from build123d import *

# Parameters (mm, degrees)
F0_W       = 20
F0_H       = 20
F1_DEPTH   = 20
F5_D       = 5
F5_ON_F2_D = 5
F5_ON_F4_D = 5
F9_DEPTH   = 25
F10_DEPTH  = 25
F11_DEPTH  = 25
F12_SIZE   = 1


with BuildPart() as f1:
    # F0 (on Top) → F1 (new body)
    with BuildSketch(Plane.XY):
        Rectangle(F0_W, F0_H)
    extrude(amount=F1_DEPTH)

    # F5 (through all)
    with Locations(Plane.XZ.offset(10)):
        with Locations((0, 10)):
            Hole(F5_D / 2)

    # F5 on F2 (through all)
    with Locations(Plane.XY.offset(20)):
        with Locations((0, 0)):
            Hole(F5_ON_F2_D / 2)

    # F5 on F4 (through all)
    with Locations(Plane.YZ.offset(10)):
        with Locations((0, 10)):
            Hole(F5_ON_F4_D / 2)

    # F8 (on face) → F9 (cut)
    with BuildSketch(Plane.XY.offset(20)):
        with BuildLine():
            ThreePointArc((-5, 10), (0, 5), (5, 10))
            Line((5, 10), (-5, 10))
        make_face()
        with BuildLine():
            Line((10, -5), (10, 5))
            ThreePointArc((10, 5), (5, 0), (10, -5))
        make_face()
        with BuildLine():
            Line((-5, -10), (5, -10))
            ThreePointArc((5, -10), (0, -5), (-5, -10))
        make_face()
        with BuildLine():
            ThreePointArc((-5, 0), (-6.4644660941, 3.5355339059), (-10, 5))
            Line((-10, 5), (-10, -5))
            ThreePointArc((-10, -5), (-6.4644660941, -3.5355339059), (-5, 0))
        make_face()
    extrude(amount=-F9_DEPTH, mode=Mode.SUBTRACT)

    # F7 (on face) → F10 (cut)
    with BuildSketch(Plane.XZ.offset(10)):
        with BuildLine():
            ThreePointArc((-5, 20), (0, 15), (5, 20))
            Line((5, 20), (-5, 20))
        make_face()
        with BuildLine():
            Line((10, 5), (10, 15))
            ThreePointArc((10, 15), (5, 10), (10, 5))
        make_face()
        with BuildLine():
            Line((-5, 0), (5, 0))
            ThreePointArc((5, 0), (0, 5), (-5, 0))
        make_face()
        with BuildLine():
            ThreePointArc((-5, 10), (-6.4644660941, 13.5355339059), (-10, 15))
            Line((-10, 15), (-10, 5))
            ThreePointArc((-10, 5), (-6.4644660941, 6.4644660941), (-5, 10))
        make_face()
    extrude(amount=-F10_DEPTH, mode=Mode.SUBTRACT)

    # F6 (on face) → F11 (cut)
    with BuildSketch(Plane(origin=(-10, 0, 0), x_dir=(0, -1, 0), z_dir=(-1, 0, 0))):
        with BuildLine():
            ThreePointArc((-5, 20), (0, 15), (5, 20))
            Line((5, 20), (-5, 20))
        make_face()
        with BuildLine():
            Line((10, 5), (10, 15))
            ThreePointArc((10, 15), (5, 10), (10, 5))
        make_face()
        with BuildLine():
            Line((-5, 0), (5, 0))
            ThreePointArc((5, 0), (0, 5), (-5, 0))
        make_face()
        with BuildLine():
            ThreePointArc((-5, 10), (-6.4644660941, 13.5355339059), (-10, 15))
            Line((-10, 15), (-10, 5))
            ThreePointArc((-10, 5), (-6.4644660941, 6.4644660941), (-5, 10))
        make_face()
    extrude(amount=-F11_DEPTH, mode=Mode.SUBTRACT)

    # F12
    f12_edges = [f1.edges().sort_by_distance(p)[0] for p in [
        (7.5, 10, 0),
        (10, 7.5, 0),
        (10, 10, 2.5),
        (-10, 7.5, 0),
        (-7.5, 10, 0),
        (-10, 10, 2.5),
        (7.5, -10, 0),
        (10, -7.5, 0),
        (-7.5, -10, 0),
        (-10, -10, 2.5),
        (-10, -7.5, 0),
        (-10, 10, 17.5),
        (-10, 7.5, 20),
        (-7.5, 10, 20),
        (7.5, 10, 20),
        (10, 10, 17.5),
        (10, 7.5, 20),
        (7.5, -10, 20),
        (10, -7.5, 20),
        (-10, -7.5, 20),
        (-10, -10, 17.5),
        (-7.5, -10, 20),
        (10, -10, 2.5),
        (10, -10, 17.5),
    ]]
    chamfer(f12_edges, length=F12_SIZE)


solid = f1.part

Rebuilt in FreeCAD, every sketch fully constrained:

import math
import FreeCAD as App
import Part
import Sketcher


def edges_at(feature, points):
    """Names of the edges that pass closest to the given points."""
    edges = feature.Shape.Edges
    near = lambda p: min(range(len(edges)), key=lambda i: edges[i].distToShape(Part.Vertex(*p))[0])
    return sorted({f"Edge{near(p) + 1}" for p in points})


def add_polygon(sketch, points):
    """Adds a closed chain of lines whose ends are joined by coincident constraints."""
    first, n = sketch.GeometryCount, len(points)
    for a, b in zip(points, points[1:] + points[:1]):
        sketch.addGeometry(Part.LineSegment(App.Vector(*a, 0), App.Vector(*b, 0)), False)
    for i in range(n):
        sketch.addConstraint(Sketcher.Constraint("Coincident", first + i, 2, first + (i + 1) % n, 1))

doc = App.newDocument("Part")
body = doc.addObject("PartDesign::Body", "Body")

# Sketch on XY plane
sketch1 = body.newObject("Sketcher::SketchObject", "Sketch")
sketch1.AttachmentSupport = (doc.getObject("XY_Plane"), [""])
sketch1.MapMode = "FlatFace"
add_polygon(sketch1, [(-10, 10), (-10, -10), (10, -10), (10, 10)])  # lines 0-3
sketch1.addConstraint([
    Sketcher.Constraint("Vertical", 0),
    Sketcher.Constraint("Horizontal", 1),
    Sketcher.Constraint("Vertical", 2),
    Sketcher.Constraint("Horizontal", 3),
    Sketcher.Constraint("Symmetric", 0, 2, 2, 2, -1, 1),
    Sketcher.Constraint("Equal", 3, 0),
    Sketcher.Constraint("DistanceX", 1, 1, 1, 2, 20.0),
])
pad1 = body.newObject("PartDesign::Pad", "Pad")
pad1.Profile = sketch1
pad1.Length = 20

# Sketch on XZ plane
sketch2 = body.newObject("Sketcher::SketchObject", "Sketch001")
sketch2.AttachmentSupport = (doc.getObject("XZ_Plane"), [""])
sketch2.MapMode = "FlatFace"
sketch2.AttachmentOffset = App.Placement(App.Vector(0, 0, 10), App.Rotation())
sketch2.addGeometry(Part.Circle(App.Vector(0, 10, 0), App.Vector(0, 0, 1), 2.5), False)
sketch2.addConstraint([
    Sketcher.Constraint("PointOnObject", 0, 3, -2),
    Sketcher.Constraint("Diameter", 0, 5.0),
    Sketcher.Constraint("DistanceY", -1, 1, 0, 3, 10.0),
])
doc.recompute()
hole = body.newObject("PartDesign::Hole", "Hole")
hole.Profile = sketch2
hole.ThreadType = "None"
hole.Diameter = 5
hole.DepthType = "ThroughAll"

# Sketch on XY plane
sketch3 = body.newObject("Sketcher::SketchObject", "Sketch002")
sketch3.AttachmentSupport = (doc.getObject("XY_Plane"), [""])
sketch3.MapMode = "FlatFace"
sketch3.AttachmentOffset = App.Placement(App.Vector(0, 0, 20), App.Rotation())
sketch3.addGeometry(Part.Circle(App.Vector(0, 0, 0), App.Vector(0, 0, 1), 2.5), False)
sketch3.addConstraint([
    Sketcher.Constraint("Coincident", 0, 3, -1, 1),
    Sketcher.Constraint("Diameter", 0, 5.0),
])
doc.recompute()
hole2 = body.newObject("PartDesign::Hole", "Hole001")
hole2.Profile = sketch3
hole2.ThreadType = "None"
hole2.Diameter = 5
hole2.DepthType = "ThroughAll"

# Sketch on YZ plane
sketch4 = body.newObject("Sketcher::SketchObject", "Sketch003")
sketch4.AttachmentSupport = (doc.getObject("YZ_Plane"), [""])
sketch4.MapMode = "FlatFace"
sketch4.AttachmentOffset = App.Placement(App.Vector(0, 0, 10), App.Rotation())
sketch4.addGeometry(Part.Circle(App.Vector(0, 10, 0), App.Vector(0, 0, 1), 2.5), False)
sketch4.addConstraint([
    Sketcher.Constraint("PointOnObject", 0, 3, -2),
    Sketcher.Constraint("Diameter", 0, 5.0),
    Sketcher.Constraint("DistanceY", -1, 1, 0, 3, 10.0),
])
doc.recompute()
hole3 = body.newObject("PartDesign::Hole", "Hole002")
hole3.Profile = sketch4
hole3.ThreadType = "None"
hole3.Diameter = 5
hole3.DepthType = "ThroughAll"

# Sketch on XY plane
sketch5 = body.newObject("Sketcher::SketchObject", "Sketch004")
sketch5.AttachmentSupport = (doc.getObject("XY_Plane"), [""])
sketch5.MapMode = "FlatFace"
sketch5.AttachmentOffset = App.Placement(App.Vector(0, 0, 20), App.Rotation())
sketch5.addGeometry([
    Part.ArcOfCircle(Part.Circle(App.Vector(0, 10, 0), App.Vector(0, 0, 1), 5), math.radians(180), math.radians(360)),  # 0
    Part.LineSegment(App.Vector(5, 10, 0), App.Vector(-5, 10, 0)),  # 1
    Part.LineSegment(App.Vector(10, -5, 0), App.Vector(10, 5, 0)),  # 2
    Part.ArcOfCircle(Part.Circle(App.Vector(10, 0, 0), App.Vector(0, 0, 1), 5), math.radians(90), math.radians(270)),  # 3
    Part.LineSegment(App.Vector(-5, -10, 0), App.Vector(5, -10, 0)),  # 4
    Part.ArcOfCircle(Part.Circle(App.Vector(0, -10, 0), App.Vector(0, 0, 1), 5), math.radians(0), math.radians(180)),  # 5
    Part.ArcOfCircle(Part.Circle(App.Vector(-10, 0, 0), App.Vector(0, 0, 1), 5), math.radians(0), math.radians(90)),  # 6
    Part.LineSegment(App.Vector(-10, 5, 0), App.Vector(-10, -5, 0)),  # 7
    Part.ArcOfCircle(Part.Circle(App.Vector(-10, 0, 0), App.Vector(0, 0, 1), 5), math.radians(-90), math.radians(0)),  # 8
], False)
sketch5.addConstraint([
    Sketcher.Constraint("Coincident", 0, 1, 1, 2),
    Sketcher.Constraint("Coincident", 1, 1, 0, 2),
    Sketcher.Constraint("Coincident", 2, 1, 3, 2),
    Sketcher.Constraint("Coincident", 3, 1, 2, 2),
    Sketcher.Constraint("Coincident", 4, 1, 5, 2),
    Sketcher.Constraint("Coincident", 5, 1, 4, 2),
    Sketcher.Constraint("Coincident", 6, 2, 7, 1),
    Sketcher.Constraint("Coincident", 7, 2, 8, 1),
    Sketcher.Constraint("Tangent", 8, 2, 6, 1),
    Sketcher.Constraint("Horizontal", 1),
    Sketcher.Constraint("Vertical", 2),
    Sketcher.Constraint("Horizontal", 4),
    Sketcher.Constraint("Vertical", 7),
    Sketcher.Constraint("Equal", 0, 3),
    Sketcher.Constraint("Equal", 3, 5),
    Sketcher.Constraint("Equal", 5, 6),
    Sketcher.Constraint("Equal", 6, 8),
    Sketcher.Constraint("Symmetric", 0, 3, 5, 3, -1, 1),
    Sketcher.Constraint("Symmetric", 3, 3, 6, 3, -1, 1),
    Sketcher.Constraint("Symmetric", 3, 1, 6, 2, -2),
    Sketcher.Constraint("Symmetric", 0, 1, 4, 1, -1),
    Sketcher.Constraint("PointOnObject", 8, 2, -1),
    Sketcher.Constraint("Horizontal", 5, 3, 4, 1),
    Sketcher.Constraint("Vertical", 3, 3, 2, 1),
    Sketcher.Constraint("Vertical", 4, 1, 8, 2),
    Sketcher.Constraint("Radius", 0, 5.0),
    Sketcher.Constraint("DistanceY", -1, 1, 0, 3, 10.0),
])
pocket1 = body.newObject("PartDesign::Pocket", "Pocket")
pocket1.Profile = sketch5
pocket1.Length = 25

# Sketch on XZ plane
sketch6 = body.newObject("Sketcher::SketchObject", "Sketch005")
sketch6.AttachmentSupport = (doc.getObject("XZ_Plane"), [""])
sketch6.MapMode = "FlatFace"
sketch6.AttachmentOffset = App.Placement(App.Vector(0, 0, 10), App.Rotation())
sketch6.addGeometry([
    Part.ArcOfCircle(Part.Circle(App.Vector(0, 20, 0), App.Vector(0, 0, 1), 5), math.radians(180), math.radians(360)),  # 0
    Part.LineSegment(App.Vector(5, 20, 0), App.Vector(-5, 20, 0)),  # 1
    Part.LineSegment(App.Vector(10, 5, 0), App.Vector(10, 15, 0)),  # 2
    Part.ArcOfCircle(Part.Circle(App.Vector(10, 10, 0), App.Vector(0, 0, 1), 5), math.radians(90), math.radians(270)),  # 3
    Part.LineSegment(App.Vector(-5, 0, 0), App.Vector(5, 0, 0)),  # 4
    Part.ArcOfCircle(Part.Circle(App.Vector(0, 0, 0), App.Vector(0, 0, 1), 5), math.radians(0), math.radians(180)),  # 5
    Part.ArcOfCircle(Part.Circle(App.Vector(-10, 10, 0), App.Vector(0, 0, 1), 5), math.radians(0), math.radians(90)),  # 6
    Part.LineSegment(App.Vector(-10, 15, 0), App.Vector(-10, 5, 0)),  # 7
    Part.ArcOfCircle(Part.Circle(App.Vector(-10, 10, 0), App.Vector(0, 0, 1), 5), math.radians(-90), math.radians(0)),  # 8
], False)
sketch6.addConstraint([
    Sketcher.Constraint("Coincident", 0, 1, 1, 2),
    Sketcher.Constraint("Coincident", 1, 1, 0, 2),
    Sketcher.Constraint("Coincident", 2, 1, 3, 2),
    Sketcher.Constraint("Coincident", 3, 1, 2, 2),
    Sketcher.Constraint("Coincident", 4, 1, 5, 2),
    Sketcher.Constraint("Coincident", 5, 1, 4, 2),
    Sketcher.Constraint("Coincident", 6, 2, 7, 1),
    Sketcher.Constraint("Coincident", 7, 2, 8, 1),
    Sketcher.Constraint("Tangent", 8, 2, 6, 1),
    Sketcher.Constraint("Horizontal", 1),
    Sketcher.Constraint("Vertical", 2),
    Sketcher.Constraint("Horizontal", 4),
    Sketcher.Constraint("Vertical", 7),
    Sketcher.Constraint("Coincident", 5, 3, -1, 1),
    Sketcher.Constraint("Equal", 0, 3),
    Sketcher.Constraint("Equal", 3, 5),
    Sketcher.Constraint("Equal", 5, 6),
    Sketcher.Constraint("Equal", 6, 8),
    Sketcher.Constraint("Symmetric", 3, 3, 6, 3, -2),
    Sketcher.Constraint("PointOnObject", 0, 3, -2),
    Sketcher.Constraint("PointOnObject", 4, 1, -1),
    Sketcher.Constraint("Horizontal", 6, 3, 8, 2),
    Sketcher.Constraint("Vertical", 3, 3, 2, 1),
    Sketcher.Constraint("Vertical", 8, 3, 6, 2),
    Sketcher.Constraint("Vertical", 4, 1, 8, 2),
    Sketcher.Constraint("Radius", 0, 5.0),
    Sketcher.Constraint("DistanceY", -1, 1, 0, 3, 20.0),
    Sketcher.Constraint("DistanceY", -1, 1, 3, 3, 10.0),
    Sketcher.Constraint("DistanceY", -1, 1, 0, 1, 20.0),
])
pocket2 = body.newObject("PartDesign::Pocket", "Pocket001")
pocket2.Profile = sketch6
pocket2.Length = 25

# Sketch on YZ plane
sketch7 = body.newObject("Sketcher::SketchObject", "Sketch006")
sketch7.AttachmentSupport = (doc.getObject("YZ_Plane"), [""])
sketch7.MapMode = "FlatFace"
sketch7.AttachmentOffset = App.Placement(App.Vector(0, 0, -10), App.Rotation())
sketch7.addGeometry([
    Part.ArcOfCircle(Part.Circle(App.Vector(0, 20, 0), App.Vector(0, 0, 1), 5), math.radians(180), math.radians(360)),  # 0
    Part.LineSegment(App.Vector(-5, 20, 0), App.Vector(5, 20, 0)),  # 1
    Part.LineSegment(App.Vector(-10, 5, 0), App.Vector(-10, 15, 0)),  # 2
    Part.ArcOfCircle(Part.Circle(App.Vector(-10, 10, 0), App.Vector(0, 0, 1), 5), math.radians(-90), math.radians(90)),  # 3
    Part.LineSegment(App.Vector(5, 0, 0), App.Vector(-5, 0, 0)),  # 4
    Part.ArcOfCircle(Part.Circle(App.Vector(0, 0, 0), App.Vector(0, 0, 1), 5), math.radians(0), math.radians(180)),  # 5
    Part.ArcOfCircle(Part.Circle(App.Vector(10, 10, 0), App.Vector(0, 0, 1), 5), math.radians(90), math.radians(180)),  # 6
    Part.LineSegment(App.Vector(10, 15, 0), App.Vector(10, 5, 0)),  # 7
    Part.ArcOfCircle(Part.Circle(App.Vector(10, 10, 0), App.Vector(0, 0, 1), 5), math.radians(180), math.radians(270)),  # 8
], False)
sketch7.addConstraint([
    Sketcher.Constraint("Coincident", 0, 1, 1, 1),
    Sketcher.Constraint("Coincident", 1, 2, 0, 2),
    Sketcher.Constraint("Coincident", 2, 1, 3, 1),
    Sketcher.Constraint("Coincident", 3, 2, 2, 2),
    Sketcher.Constraint("Coincident", 4, 1, 5, 1),
    Sketcher.Constraint("Coincident", 5, 2, 4, 2),
    Sketcher.Constraint("Coincident", 6, 1, 7, 1),
    Sketcher.Constraint("Coincident", 7, 2, 8, 2),
    Sketcher.Constraint("Tangent", 8, 1, 6, 2),
    Sketcher.Constraint("Horizontal", 1),
    Sketcher.Constraint("Vertical", 2),
    Sketcher.Constraint("Horizontal", 4),
    Sketcher.Constraint("Vertical", 7),
    Sketcher.Constraint("Coincident", 5, 3, -1, 1),
    Sketcher.Constraint("Equal", 0, 3),
    Sketcher.Constraint("Equal", 3, 5),
    Sketcher.Constraint("Equal", 5, 6),
    Sketcher.Constraint("Equal", 6, 8),
    Sketcher.Constraint("Symmetric", 3, 3, 6, 3, -2),
    Sketcher.Constraint("PointOnObject", 0, 3, -2),
    Sketcher.Constraint("PointOnObject", 4, 1, -1),
    Sketcher.Constraint("Horizontal", 6, 3, 8, 1),
    Sketcher.Constraint("Vertical", 3, 3, 2, 1),
    Sketcher.Constraint("Vertical", 8, 3, 6, 1),
    Sketcher.Constraint("Vertical", 4, 1, 8, 1),
    Sketcher.Constraint("Radius", 0, 5.0),
    Sketcher.Constraint("DistanceY", -1, 1, 0, 3, 20.0),
    Sketcher.Constraint("DistanceY", -1, 1, 3, 3, 10.0),
    Sketcher.Constraint("DistanceY", -1, 1, 0, 1, 20.0),
])
pocket3 = body.newObject("PartDesign::Pocket", "Pocket002")
pocket3.Profile = sketch7
pocket3.Length = 25
pocket3.Reversed = True
doc.recompute()

chamfer = body.newObject("PartDesign::Chamfer", "Chamfer")
chamfer.Base = (pocket3, edges_at(pocket3, [
    (7.5, 10, 0),
    (10, 7.5, 0),
    (10, 10, 2.5),
    (-10, 7.5, 0),
    (-7.5, 10, 0),
    (-10, 10, 2.5),
    (7.5, -10, 0),
    (10, -7.5, 0),
    (-7.5, -10, 0),
    (-10, -10, 2.5),
    (-10, -7.5, 0),
    (-10, 10, 17.5),
    (-10, 7.5, 20),
    (-7.5, 10, 20),
    (7.5, 10, 20),
    (10, 10, 17.5),
    (10, 7.5, 20),
    (7.5, -10, 20),
    (10, -7.5, 20),
    (-10, -7.5, 20),
    (-10, -10, 17.5),
    (-7.5, -10, 20),
    (10, -10, 2.5),
    (10, -10, 17.5),
]))
chamfer.Size = 1

doc.recompute()
